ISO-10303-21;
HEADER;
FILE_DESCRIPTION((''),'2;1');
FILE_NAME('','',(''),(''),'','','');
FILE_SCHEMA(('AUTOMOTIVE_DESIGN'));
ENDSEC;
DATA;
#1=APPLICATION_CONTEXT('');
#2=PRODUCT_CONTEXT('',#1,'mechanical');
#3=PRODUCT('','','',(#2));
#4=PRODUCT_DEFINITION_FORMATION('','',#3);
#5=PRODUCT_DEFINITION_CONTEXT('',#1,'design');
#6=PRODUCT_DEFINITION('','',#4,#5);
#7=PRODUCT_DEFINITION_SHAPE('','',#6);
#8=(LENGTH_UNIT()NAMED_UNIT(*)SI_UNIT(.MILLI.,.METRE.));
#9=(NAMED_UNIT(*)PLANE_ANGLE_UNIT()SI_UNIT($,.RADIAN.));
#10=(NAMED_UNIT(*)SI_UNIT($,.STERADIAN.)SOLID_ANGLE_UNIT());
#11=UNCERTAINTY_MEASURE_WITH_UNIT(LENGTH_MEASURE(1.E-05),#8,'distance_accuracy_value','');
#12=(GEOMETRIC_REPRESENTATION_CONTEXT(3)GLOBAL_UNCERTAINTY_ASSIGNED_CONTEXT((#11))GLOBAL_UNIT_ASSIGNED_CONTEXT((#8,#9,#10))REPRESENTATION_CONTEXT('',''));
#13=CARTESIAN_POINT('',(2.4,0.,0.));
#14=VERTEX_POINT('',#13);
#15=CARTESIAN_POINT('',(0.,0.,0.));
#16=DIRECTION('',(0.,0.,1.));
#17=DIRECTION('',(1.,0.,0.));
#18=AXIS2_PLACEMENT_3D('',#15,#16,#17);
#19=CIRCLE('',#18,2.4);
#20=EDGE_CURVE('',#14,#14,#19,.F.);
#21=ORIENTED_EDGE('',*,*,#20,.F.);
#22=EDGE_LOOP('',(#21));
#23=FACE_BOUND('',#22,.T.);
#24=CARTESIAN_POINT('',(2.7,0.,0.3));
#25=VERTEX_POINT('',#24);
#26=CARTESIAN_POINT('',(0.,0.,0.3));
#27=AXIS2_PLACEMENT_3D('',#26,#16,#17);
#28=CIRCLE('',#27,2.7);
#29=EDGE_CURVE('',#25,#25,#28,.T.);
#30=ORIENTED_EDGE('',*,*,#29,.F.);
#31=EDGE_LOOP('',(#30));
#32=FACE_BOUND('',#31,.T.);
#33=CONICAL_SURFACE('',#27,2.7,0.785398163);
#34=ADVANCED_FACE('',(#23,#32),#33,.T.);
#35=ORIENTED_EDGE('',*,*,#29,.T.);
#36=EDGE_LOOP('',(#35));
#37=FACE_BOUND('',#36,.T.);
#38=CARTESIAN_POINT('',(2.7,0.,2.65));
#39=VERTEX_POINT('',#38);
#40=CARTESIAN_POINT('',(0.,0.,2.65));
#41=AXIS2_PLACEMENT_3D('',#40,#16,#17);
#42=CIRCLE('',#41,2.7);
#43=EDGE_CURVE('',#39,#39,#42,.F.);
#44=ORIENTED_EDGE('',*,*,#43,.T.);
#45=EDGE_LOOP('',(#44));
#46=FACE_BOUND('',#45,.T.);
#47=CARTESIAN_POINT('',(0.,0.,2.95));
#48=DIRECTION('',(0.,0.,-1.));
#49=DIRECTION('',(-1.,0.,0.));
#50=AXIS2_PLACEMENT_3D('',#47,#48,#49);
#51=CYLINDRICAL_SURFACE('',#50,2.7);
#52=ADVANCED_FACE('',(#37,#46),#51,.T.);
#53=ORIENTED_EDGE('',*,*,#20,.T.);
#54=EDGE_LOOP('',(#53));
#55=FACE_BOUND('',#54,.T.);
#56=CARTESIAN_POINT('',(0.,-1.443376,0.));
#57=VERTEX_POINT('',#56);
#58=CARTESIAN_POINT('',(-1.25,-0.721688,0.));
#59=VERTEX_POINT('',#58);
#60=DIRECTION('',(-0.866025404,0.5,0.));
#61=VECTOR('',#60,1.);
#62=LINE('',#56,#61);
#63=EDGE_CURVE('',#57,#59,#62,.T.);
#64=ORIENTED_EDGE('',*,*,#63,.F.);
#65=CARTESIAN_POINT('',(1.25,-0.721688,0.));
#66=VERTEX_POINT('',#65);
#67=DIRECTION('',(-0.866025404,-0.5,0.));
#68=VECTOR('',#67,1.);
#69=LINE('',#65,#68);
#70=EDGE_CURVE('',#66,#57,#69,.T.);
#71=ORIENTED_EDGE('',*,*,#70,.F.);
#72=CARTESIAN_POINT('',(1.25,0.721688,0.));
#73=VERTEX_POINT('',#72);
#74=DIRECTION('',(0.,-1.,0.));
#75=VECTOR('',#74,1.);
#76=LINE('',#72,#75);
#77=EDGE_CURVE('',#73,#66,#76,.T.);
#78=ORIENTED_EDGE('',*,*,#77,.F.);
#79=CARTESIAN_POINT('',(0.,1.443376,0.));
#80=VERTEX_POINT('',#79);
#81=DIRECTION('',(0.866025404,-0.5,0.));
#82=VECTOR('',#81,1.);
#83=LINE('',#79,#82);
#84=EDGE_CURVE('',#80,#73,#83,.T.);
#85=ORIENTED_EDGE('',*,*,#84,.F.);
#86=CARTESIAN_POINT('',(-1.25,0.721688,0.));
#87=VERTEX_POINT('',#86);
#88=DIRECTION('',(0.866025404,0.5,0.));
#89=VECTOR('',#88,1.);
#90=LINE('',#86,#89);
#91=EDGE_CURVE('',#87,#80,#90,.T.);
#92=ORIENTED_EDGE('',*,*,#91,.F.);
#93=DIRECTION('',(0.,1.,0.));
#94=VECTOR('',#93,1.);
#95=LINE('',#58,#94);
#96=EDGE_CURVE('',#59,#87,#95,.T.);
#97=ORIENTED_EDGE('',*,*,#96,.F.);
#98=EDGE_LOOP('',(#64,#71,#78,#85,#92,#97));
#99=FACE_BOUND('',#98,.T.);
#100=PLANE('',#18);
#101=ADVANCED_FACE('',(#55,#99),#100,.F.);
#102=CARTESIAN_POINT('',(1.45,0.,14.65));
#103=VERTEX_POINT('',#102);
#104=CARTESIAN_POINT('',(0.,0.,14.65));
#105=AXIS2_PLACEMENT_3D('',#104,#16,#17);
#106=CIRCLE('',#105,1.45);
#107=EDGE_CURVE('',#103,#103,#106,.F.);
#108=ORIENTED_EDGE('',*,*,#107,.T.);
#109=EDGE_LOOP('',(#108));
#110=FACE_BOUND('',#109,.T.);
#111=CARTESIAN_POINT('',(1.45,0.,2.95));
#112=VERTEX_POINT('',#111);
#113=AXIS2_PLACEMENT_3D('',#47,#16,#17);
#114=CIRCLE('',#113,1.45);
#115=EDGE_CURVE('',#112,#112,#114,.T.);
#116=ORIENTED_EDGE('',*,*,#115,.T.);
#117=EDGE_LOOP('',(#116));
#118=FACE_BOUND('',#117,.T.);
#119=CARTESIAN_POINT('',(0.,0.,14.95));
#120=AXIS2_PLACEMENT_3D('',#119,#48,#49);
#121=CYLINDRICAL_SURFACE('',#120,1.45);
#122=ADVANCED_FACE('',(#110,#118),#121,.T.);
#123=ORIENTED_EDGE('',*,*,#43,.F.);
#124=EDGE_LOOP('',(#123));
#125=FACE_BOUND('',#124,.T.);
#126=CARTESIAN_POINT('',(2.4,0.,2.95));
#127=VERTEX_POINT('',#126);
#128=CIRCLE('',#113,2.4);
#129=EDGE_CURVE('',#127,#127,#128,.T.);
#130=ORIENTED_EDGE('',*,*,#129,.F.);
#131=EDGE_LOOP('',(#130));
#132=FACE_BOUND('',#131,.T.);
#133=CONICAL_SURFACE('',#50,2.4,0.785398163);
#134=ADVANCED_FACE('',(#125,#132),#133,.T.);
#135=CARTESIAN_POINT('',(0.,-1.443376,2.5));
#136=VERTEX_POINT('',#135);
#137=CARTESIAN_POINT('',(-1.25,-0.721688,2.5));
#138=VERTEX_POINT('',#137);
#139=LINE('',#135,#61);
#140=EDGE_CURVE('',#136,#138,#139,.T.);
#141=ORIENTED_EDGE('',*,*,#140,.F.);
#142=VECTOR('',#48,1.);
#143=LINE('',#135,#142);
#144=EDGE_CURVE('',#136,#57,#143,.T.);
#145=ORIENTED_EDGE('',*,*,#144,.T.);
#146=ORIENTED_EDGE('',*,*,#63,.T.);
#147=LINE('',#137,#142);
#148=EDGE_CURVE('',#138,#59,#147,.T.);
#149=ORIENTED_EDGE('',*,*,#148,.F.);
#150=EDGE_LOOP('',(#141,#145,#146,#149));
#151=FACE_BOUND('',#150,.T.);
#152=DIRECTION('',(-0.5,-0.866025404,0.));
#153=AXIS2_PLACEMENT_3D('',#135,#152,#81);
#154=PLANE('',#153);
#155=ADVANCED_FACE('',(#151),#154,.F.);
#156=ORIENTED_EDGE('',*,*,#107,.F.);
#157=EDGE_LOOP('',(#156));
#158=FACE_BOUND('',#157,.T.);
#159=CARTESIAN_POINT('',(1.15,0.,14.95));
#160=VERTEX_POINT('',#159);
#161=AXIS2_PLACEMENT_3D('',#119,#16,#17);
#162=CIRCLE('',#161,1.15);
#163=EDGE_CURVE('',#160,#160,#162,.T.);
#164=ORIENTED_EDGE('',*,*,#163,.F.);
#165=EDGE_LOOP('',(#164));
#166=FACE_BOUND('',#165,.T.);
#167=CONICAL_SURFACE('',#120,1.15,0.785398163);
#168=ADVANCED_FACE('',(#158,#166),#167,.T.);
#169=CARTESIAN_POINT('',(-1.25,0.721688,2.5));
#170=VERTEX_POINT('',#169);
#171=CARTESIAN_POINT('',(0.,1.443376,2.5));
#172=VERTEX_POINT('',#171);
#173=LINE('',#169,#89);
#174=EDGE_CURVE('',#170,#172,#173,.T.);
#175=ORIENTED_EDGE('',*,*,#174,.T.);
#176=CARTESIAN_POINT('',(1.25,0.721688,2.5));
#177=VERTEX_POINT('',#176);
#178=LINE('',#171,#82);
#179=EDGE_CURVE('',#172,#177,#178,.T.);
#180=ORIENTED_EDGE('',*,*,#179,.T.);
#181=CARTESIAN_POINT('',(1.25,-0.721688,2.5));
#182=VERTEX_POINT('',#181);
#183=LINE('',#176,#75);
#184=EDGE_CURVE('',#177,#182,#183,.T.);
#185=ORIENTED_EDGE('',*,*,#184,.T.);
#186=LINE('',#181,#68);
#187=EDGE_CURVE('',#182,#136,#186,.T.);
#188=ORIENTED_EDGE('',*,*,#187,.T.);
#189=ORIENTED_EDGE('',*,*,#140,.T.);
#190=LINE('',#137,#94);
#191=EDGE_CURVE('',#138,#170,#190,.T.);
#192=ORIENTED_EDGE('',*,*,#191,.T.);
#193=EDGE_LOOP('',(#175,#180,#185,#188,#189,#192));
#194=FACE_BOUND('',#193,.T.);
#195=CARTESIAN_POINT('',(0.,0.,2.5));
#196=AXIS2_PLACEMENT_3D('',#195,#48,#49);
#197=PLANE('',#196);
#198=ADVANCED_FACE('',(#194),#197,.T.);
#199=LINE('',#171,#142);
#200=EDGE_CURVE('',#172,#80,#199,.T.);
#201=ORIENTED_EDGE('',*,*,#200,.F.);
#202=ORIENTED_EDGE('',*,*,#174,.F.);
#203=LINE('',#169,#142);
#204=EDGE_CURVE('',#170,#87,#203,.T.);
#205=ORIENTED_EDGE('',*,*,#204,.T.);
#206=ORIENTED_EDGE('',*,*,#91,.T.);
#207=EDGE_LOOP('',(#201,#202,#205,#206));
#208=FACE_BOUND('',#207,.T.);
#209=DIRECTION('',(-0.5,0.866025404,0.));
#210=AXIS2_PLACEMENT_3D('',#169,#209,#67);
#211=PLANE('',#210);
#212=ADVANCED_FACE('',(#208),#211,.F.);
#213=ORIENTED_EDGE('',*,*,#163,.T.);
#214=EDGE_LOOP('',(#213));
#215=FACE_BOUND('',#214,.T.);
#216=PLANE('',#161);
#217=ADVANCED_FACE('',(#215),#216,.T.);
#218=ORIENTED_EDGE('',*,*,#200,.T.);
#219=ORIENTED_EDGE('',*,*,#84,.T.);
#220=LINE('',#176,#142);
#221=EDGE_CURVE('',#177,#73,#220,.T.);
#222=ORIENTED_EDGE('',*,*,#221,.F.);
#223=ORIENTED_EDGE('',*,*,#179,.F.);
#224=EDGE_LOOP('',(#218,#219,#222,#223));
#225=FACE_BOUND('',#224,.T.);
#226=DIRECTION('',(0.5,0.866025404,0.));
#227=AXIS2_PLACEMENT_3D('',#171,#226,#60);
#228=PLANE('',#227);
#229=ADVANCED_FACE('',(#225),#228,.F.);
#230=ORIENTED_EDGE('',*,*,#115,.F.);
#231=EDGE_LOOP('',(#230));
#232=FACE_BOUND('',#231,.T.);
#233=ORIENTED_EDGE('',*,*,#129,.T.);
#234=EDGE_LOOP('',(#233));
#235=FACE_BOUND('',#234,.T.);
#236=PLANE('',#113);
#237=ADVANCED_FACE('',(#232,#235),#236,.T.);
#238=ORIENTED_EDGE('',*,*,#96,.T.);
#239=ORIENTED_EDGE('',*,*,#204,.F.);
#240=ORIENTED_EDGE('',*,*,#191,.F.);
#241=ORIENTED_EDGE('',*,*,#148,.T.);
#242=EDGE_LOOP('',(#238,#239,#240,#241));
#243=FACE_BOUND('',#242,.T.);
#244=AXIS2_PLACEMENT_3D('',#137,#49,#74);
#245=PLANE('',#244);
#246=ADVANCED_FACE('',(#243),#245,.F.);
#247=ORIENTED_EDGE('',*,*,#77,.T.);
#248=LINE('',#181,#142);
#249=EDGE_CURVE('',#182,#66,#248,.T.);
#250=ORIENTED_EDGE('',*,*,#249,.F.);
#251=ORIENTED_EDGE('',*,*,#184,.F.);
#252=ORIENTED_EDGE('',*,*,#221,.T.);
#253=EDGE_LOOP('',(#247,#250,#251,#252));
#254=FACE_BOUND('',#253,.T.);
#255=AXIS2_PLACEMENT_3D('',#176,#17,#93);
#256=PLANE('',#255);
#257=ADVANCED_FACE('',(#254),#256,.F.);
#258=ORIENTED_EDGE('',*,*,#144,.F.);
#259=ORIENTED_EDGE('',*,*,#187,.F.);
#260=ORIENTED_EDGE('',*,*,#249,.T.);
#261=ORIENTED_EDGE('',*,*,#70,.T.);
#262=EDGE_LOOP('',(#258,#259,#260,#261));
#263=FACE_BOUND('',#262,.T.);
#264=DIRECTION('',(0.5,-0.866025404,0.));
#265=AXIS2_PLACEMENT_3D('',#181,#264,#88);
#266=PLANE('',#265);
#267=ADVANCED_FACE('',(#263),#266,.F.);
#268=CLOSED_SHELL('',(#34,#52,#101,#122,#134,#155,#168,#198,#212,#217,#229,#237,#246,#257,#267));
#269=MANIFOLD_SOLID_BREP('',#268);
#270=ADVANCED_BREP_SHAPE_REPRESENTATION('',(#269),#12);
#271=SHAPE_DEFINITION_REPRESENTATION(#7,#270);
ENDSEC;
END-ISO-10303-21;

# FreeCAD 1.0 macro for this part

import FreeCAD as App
import Part
import Sketcher

V = App.Vector
Q = App.Units.Quantity


def edges_at(feature, points):
    """Names of the edges that pass closest to the given points."""
    edges = feature.Shape.Edges
    near = lambda p: min(range(len(edges)), key=lambda i: edges[i].distToShape(Part.Vertex(*p))[0])
    return sorted({f"Edge{near(p) + 1}" for p in points})


def add_polygon(sketch, points):
    """Adds a closed chain of lines whose ends are joined by coincident constraints."""
    first, n = sketch.GeometryCount, len(points)
    for a, b in zip(points, points[1:] + points[:1]):
        sketch.addGeometry(Part.LineSegment(App.Vector(*a, 0), App.Vector(*b, 0)), False)
    for i in range(n):
        sketch.addConstraint(Sketcher.Constraint("Coincident", first + i, 2, first + (i + 1) % n, 1))

doc = App.newDocument("Part")
params = doc.addObject("Spreadsheet::Sheet", "Params")
for row, (alias, value) in enumerate([
    ("sketch1_diameter", "5.4 mm"),
    ("pad1_length", "2.95 mm"),
    ("sketch2_diameter", "2.9 mm"),
    ("pad2_length", "12 mm"),
    ("chamfer_size", "0.3 mm"),
    ("pocket1_length", "2.5 mm"),
], start=1):
    params.set(f"A{row}", alias)
    params.set(f"B{row}", "=" + value)
    params.setAlias(f"B{row}", alias)

body = doc.addObject("PartDesign::Body", "Body")

# Sketch on XY plane
sketch1 = body.newObject("Sketcher::SketchObject", "Sketch")
sketch1.AttachmentSupport = (doc.getObject("XY_Plane"), [""])
sketch1.MapMode = "FlatFace"
sketch1.addGeometry(Part.Circle(V(0, 0, 0), V(0, 0, 1), 2.7), False)
sketch1.addConstraint([
    Sketcher.Constraint("Coincident", 0, 3, -1, 1),
    Sketcher.Constraint("Diameter", 0, 5.4),
])
sketch1.setExpression("Constraints[1]", "Params.sketch1_diameter")
pad1 = body.newObject("PartDesign::Pad", "Pad")
pad1.Profile = sketch1
pad1.setExpression("Length", "Params.pad1_length")

# Sketch on XY plane
sketch2 = body.newObject("Sketcher::SketchObject", "Sketch001")
sketch2.AttachmentSupport = (doc.getObject("XY_Plane"), [""])
sketch2.MapMode = "FlatFace"
sketch2.AttachmentOffset = App.Placement(V(0, 0, 2.95), App.Rotation())
sketch2.addGeometry(Part.Circle(V(0, 0, 0), V(0, 0, 1), 1.4), False)
sketch2.addConstraint([
    Sketcher.Constraint("Coincident", 0, 3, -1, 1),
    Sketcher.Constraint("Diameter", 0, 2.9),
])
sketch2.setExpression("Constraints[1]", "Params.sketch2_diameter")
pad2 = body.newObject("PartDesign::Pad", "Pad001")
pad2.Profile = sketch2
pad2.setExpression("Length", "Params.pad2_length")
doc.recompute()

chamfer = body.newObject("PartDesign::Chamfer", "Chamfer")
chamfer.Base = (pad2, edges_at(pad2, [(-2.7, 0, 0), (-2.7, 0, 2.95), (-1.45, 0, 14.95)]))
chamfer.setExpression("Size", "Params.chamfer_size")

# Sketch on XY plane
sketch3 = body.newObject("Sketcher::SketchObject", "Sketch002")
sketch3.AttachmentSupport = (doc.getObject("XY_Plane"), [""])
sketch3.MapMode = "FlatFace"
add_polygon(sketch3, [(-1.2, 0.7), (0, 1.4), (1.2, 0.7), (1.2, -0.7), (0, -1.4), (-1.2, -0.7)])  # lines 0-5
sketch3.addConstraint([
    Sketcher.Constraint("Vertical", 2),
    Sketcher.Constraint("Vertical", 5),
    Sketcher.Constraint("Symmetric", 0, 2, 3, 2, -1, 1),
    Sketcher.Constraint("Symmetric", 1, 2, 4, 2, -1, 1),
    Sketcher.Constraint("PointOnObject", 0, 2, -2),
    Sketcher.Constraint("Parallel", 0, 3),
    Sketcher.Constraint("Horizontal", 2, 2, 4, 2),
    Sketcher.Constraint("Angle", 0, Q("30 deg")),
    Sketcher.Constraint("DistanceX", 4, 2, 2, 2, 2.5),
    Sketcher.Constraint("DistanceY", 2, 2, 2, 1, 1.443376),
])
pocket1 = body.newObject("PartDesign::Pocket", "Pocket")
pocket1.Profile = sketch3
pocket1.setExpression("Length", "Params.pocket1_length")
pocket1.Reversed = True

doc.recompute()
